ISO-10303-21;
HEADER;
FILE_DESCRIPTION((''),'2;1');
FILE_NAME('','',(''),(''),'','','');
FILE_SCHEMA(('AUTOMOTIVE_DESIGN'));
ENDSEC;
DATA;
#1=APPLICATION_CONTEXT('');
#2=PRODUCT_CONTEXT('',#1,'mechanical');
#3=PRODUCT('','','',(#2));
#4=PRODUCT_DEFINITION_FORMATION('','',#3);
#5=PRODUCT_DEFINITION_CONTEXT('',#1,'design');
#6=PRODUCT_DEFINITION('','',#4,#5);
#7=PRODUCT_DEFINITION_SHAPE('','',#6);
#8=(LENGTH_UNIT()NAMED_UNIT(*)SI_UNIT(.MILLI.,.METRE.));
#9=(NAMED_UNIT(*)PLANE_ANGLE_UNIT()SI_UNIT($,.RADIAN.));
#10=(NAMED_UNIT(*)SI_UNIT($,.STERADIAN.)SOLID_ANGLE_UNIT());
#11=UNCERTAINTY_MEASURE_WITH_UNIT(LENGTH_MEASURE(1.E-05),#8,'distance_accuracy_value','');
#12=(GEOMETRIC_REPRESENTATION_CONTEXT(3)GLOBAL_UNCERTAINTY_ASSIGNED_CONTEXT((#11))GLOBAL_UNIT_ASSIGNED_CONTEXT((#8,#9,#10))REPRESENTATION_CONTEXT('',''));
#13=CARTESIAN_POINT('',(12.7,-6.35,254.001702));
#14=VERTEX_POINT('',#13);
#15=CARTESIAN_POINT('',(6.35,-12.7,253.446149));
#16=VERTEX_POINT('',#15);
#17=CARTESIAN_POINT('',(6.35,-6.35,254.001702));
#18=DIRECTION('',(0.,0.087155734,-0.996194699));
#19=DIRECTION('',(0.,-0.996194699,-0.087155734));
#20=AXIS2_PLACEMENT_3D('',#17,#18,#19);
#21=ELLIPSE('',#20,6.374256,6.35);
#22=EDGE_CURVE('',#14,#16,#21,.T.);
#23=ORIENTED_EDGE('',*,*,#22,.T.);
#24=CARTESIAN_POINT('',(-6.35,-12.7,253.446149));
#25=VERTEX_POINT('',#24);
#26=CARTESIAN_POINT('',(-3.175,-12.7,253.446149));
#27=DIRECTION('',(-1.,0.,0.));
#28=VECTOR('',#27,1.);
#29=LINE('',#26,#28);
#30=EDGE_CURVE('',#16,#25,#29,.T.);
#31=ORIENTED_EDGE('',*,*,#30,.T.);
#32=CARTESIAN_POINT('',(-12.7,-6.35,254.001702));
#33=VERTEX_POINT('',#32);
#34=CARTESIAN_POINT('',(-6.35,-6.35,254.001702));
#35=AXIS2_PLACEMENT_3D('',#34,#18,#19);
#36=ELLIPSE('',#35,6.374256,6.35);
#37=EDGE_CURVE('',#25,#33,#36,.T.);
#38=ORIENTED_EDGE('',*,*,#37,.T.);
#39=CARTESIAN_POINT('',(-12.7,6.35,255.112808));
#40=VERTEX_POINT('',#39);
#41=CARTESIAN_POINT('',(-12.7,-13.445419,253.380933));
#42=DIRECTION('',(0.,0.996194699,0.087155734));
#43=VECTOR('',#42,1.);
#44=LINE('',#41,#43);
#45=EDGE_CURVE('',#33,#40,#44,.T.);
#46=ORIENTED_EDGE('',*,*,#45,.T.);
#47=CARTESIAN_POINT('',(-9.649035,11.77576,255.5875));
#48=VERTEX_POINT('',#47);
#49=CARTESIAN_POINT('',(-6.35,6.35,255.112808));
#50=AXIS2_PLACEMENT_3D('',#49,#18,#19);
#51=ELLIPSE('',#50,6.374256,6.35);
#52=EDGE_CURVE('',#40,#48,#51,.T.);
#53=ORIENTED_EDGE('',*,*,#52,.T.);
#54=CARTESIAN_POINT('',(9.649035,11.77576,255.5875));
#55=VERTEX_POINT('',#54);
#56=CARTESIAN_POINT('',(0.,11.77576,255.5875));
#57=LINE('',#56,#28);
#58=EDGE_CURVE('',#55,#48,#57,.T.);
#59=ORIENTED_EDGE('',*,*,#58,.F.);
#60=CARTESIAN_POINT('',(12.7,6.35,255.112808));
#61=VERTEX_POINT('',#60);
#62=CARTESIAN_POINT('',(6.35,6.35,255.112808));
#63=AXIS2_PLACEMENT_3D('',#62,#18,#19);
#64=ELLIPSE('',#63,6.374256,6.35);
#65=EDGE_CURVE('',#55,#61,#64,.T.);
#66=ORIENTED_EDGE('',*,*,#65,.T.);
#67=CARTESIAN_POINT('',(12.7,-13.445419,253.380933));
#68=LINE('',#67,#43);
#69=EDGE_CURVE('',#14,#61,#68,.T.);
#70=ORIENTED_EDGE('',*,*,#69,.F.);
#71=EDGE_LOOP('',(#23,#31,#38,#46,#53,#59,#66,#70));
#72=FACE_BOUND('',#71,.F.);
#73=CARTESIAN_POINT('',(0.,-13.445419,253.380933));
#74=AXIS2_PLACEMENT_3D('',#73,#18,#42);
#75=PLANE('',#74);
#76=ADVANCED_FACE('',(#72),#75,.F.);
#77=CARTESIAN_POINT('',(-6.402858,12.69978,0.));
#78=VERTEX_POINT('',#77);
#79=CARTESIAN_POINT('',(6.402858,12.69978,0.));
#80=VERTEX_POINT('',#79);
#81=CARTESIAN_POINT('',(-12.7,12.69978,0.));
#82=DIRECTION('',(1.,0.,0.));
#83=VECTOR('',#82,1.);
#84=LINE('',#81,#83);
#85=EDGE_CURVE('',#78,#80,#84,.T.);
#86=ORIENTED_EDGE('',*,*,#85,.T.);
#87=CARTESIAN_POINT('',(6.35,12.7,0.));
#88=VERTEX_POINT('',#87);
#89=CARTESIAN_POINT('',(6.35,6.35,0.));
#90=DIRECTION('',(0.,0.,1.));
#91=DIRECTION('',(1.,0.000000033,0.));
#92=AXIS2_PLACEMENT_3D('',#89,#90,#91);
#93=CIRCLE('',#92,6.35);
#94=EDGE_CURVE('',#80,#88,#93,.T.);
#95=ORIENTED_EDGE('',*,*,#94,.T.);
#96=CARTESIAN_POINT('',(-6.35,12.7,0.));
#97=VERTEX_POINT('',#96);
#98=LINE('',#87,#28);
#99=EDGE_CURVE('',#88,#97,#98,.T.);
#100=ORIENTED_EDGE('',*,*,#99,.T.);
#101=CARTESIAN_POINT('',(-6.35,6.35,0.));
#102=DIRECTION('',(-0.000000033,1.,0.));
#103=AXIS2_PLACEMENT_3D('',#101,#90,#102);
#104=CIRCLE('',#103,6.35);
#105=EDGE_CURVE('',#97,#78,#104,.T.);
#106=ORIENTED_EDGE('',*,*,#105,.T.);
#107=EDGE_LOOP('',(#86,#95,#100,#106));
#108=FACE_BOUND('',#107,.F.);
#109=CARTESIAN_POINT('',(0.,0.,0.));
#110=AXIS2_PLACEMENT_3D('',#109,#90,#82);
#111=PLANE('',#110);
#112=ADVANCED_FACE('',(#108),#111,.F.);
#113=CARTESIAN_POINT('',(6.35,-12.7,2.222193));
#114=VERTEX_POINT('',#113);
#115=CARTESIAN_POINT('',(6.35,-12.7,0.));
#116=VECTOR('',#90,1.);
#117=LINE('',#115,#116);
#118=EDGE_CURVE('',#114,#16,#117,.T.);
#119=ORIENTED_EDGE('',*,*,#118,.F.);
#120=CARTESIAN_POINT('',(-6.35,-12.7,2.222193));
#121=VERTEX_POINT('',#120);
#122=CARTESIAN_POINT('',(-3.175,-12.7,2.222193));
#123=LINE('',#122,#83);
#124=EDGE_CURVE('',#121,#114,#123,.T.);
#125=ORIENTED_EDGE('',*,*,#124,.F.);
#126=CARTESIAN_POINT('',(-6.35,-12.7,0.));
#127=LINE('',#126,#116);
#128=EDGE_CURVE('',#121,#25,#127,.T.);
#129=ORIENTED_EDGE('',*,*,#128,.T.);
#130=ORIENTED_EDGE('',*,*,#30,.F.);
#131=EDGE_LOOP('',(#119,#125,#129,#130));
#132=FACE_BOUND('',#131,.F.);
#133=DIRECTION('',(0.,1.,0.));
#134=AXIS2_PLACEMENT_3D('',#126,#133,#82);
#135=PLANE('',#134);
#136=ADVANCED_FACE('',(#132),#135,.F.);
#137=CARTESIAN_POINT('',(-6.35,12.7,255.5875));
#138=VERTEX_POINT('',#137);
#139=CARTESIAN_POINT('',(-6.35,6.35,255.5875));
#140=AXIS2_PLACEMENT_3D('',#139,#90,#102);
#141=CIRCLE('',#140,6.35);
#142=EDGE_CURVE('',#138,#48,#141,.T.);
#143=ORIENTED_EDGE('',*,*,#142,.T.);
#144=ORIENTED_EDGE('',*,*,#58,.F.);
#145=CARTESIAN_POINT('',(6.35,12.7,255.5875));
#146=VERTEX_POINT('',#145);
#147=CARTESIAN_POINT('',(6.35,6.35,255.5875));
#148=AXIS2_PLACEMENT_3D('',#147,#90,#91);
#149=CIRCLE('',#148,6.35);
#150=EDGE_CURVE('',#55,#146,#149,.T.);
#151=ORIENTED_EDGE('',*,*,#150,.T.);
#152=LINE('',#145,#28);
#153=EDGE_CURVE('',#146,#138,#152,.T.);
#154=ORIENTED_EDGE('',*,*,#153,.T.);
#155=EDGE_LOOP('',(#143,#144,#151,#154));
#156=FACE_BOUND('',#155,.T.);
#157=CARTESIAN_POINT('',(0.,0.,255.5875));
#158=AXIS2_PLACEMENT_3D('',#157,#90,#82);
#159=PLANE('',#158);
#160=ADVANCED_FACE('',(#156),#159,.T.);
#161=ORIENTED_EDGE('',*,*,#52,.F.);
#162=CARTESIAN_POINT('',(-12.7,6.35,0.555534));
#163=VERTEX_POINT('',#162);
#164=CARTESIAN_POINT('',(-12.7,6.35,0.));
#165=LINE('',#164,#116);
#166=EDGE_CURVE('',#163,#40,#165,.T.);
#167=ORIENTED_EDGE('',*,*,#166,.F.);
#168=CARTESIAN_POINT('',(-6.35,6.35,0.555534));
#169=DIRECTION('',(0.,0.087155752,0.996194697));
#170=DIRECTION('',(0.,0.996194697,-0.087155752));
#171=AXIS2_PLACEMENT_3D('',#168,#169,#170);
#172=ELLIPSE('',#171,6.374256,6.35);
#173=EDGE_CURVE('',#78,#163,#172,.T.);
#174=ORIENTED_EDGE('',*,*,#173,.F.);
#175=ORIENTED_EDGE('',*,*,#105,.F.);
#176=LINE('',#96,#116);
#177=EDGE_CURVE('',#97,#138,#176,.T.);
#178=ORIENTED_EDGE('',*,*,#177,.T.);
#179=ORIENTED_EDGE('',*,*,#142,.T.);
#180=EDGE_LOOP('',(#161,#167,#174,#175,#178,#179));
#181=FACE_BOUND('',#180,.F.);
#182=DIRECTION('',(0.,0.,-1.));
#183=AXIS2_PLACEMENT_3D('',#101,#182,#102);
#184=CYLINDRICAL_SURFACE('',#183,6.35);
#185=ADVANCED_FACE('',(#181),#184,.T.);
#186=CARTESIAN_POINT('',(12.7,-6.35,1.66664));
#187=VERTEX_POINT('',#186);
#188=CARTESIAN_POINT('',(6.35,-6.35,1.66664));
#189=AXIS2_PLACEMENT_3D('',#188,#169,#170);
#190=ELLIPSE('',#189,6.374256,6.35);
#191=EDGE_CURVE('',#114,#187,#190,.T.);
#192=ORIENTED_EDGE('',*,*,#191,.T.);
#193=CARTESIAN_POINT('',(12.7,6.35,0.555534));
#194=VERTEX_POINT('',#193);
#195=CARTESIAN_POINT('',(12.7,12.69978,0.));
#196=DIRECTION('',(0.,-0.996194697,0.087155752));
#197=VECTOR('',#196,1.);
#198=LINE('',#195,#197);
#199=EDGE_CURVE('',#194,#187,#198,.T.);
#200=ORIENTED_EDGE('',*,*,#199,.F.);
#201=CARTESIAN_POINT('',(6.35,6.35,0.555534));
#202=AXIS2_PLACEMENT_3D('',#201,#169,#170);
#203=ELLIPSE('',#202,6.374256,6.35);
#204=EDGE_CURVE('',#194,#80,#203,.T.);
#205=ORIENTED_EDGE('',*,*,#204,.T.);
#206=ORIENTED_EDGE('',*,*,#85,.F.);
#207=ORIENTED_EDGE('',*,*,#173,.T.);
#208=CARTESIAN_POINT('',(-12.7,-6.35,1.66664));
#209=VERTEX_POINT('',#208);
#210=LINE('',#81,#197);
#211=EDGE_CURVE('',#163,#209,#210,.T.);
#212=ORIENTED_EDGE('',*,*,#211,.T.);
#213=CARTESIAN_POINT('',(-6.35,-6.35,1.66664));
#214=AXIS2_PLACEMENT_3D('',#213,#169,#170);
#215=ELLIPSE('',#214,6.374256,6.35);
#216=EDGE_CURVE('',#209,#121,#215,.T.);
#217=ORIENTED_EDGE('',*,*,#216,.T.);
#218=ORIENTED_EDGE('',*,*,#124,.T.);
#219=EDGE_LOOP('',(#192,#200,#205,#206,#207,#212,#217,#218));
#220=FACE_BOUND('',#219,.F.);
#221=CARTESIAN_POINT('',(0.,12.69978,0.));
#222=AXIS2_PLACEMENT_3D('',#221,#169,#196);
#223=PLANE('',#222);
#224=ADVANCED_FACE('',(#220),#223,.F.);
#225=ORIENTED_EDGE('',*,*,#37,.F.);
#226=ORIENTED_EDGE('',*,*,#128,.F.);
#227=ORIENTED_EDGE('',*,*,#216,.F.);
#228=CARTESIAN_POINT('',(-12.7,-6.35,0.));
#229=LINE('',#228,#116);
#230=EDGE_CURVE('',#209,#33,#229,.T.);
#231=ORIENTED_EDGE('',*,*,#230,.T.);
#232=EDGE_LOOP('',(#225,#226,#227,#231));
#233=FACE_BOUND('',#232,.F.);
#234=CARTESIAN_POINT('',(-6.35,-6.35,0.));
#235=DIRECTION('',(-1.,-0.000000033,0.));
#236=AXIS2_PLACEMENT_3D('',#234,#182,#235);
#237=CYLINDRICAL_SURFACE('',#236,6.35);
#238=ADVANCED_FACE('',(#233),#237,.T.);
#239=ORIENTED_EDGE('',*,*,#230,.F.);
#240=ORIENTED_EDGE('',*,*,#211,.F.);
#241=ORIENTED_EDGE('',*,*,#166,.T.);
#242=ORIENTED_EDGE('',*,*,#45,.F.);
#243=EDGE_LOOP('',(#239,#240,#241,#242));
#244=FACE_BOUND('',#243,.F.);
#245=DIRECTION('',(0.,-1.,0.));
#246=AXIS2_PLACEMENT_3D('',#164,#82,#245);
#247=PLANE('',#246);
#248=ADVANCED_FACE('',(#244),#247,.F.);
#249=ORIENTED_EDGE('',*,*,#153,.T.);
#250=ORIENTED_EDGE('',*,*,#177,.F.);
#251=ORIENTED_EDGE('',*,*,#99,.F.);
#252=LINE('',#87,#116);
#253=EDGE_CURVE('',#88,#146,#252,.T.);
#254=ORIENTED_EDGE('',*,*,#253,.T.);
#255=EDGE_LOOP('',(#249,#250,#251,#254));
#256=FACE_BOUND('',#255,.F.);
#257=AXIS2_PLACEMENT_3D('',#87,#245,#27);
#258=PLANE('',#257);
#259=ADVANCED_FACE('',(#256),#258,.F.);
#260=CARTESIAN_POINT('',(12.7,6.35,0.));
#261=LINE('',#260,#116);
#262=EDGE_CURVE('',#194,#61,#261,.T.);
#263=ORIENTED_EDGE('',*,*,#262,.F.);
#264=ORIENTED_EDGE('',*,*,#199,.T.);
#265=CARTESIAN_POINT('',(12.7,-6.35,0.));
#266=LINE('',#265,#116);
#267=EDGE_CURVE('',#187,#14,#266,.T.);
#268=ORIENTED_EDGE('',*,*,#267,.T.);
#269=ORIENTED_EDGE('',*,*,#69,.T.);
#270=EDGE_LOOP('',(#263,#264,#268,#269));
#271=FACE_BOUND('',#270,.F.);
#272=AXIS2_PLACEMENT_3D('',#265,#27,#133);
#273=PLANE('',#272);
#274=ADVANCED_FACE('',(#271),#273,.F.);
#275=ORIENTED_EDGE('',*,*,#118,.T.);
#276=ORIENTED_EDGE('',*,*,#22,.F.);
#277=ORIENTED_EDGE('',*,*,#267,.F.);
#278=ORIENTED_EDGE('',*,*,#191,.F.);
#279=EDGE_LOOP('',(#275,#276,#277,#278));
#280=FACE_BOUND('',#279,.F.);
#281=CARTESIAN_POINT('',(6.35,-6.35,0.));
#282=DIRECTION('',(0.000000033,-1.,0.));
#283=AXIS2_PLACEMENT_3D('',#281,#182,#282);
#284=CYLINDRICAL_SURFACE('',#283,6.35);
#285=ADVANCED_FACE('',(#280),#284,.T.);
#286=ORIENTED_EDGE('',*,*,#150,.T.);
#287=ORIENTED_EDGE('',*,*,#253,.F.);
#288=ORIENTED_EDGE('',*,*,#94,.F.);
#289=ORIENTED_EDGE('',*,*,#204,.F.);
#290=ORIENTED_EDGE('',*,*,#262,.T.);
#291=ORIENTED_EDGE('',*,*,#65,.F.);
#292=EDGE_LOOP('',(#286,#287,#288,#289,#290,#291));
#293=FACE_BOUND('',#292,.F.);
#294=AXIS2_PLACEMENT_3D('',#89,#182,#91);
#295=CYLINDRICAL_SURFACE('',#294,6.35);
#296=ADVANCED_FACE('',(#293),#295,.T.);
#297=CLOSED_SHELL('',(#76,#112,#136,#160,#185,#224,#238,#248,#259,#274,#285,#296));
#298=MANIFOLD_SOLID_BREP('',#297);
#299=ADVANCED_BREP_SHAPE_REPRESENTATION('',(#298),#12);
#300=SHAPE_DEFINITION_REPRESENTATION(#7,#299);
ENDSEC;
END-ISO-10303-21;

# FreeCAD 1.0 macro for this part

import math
import FreeCAD as App
import Part
import Sketcher
Q = App.Units.Quantity


def add_polygon(sketch, points):
    """Adds a closed chain of lines whose ends are joined by coincident constraints."""
    first, n = sketch.GeometryCount, len(points)
    for a, b in zip(points, points[1:] + points[:1]):
        sketch.addGeometry(Part.LineSegment(App.Vector(*a, 0), App.Vector(*b, 0)), False)
    for i in range(n):
        sketch.addConstraint(Sketcher.Constraint("Coincident", first + i, 2, first + (i + 1) % n, 1))

doc = App.newDocument("Part")
body = doc.addObject("PartDesign::Body", "Body")

sketch1 = body.newObject("Sketcher::SketchObject", "Sketch")
sketch1.AttachmentSupport = (doc.getObject("XY_Plane"), [""])
sketch1.MapMode = "FlatFace"
sketch1.addGeometry([
    Part.ArcOfCircle(Part.Circle(App.Vector(6, 6, 0), App.Vector(0, 0, 1), 6), math.radians(0), math.radians(90)),
    Part.LineSegment(App.Vector(6, 13, 0), App.Vector(-6, 13, 0)),
    Part.ArcOfCircle(Part.Circle(App.Vector(-6, 6, 0), App.Vector(0, 0, 1), 6), math.radians(90), math.radians(180)),
    Part.LineSegment(App.Vector(-13, 6, 0), App.Vector(-13, -6, 0)),
    Part.ArcOfCircle(Part.Circle(App.Vector(-6, -6, 0), App.Vector(0, 0, 1), 6), math.radians(-180), math.radians(-90)),
    Part.LineSegment(App.Vector(-6, -13, 0), App.Vector(6, -13, 0)),
    Part.ArcOfCircle(Part.Circle(App.Vector(6, -6, 0), App.Vector(0, 0, 1), 6), math.radians(-90), math.radians(0)),
    Part.LineSegment(App.Vector(13, -6, 0), App.Vector(13, 6, 0)),
], False)
sketch1.addConstraint([
    Sketcher.Constraint("Tangent", 0, 2, 1, 1),
    Sketcher.Constraint("Tangent", 1, 2, 2, 1),
    Sketcher.Constraint("Tangent", 2, 2, 3, 1),
    Sketcher.Constraint("Tangent", 3, 2, 4, 1),
    Sketcher.Constraint("Tangent", 4, 2, 5, 1),
    Sketcher.Constraint("Tangent", 5, 2, 6, 1),
    Sketcher.Constraint("Tangent", 6, 2, 7, 1),
    Sketcher.Constraint("Tangent", 7, 2, 0, 1),
    Sketcher.Constraint("Horizontal", 1),
    Sketcher.Constraint("Vertical", 3),
    Sketcher.Constraint("Horizontal", 5),
    Sketcher.Constraint("Vertical", 7),
    Sketcher.Constraint("Equal", 0, 2),
    Sketcher.Constraint("Equal", 2, 4),
    Sketcher.Constraint("Equal", 4, 6),
    Sketcher.Constraint("Symmetric", 0, 3, 4, 3, -1, 1),
    Sketcher.Constraint("Equal", 5, 3),
    Sketcher.Constraint("Radius", 0, Q("0.25 in")),
    Sketcher.Constraint("DistanceX", 1, 2, 1, 1, Q("0.5 in")),
])
pad1 = body.newObject("PartDesign::Pad", "Pad")
pad1.Profile = sketch1
pad1.Length = Q("10.0625 in")

sketch2 = body.newObject("Sketcher::SketchObject", "Sketch001")
sketch2.AttachmentSupport = (doc.getObject("YZ_Plane"), [""])
sketch2.MapMode = "FlatFace"
add_polygon(sketch2, [(-17.7, 0), (12.7, 0), (-17.7, 2.7)])
sketch2.addConstraint([
    Sketcher.Constraint("Horizontal", 0),
    Sketcher.Constraint("Vertical", 2),
    Sketcher.Constraint("PointOnObject", 0, 2, -1),
    Sketcher.Constraint("Angle", 1, Q("174.999999 deg")),
    Sketcher.Constraint("DistanceX", 0, 1, 0, 2, 30.41244),
    Sketcher.Constraint("DistanceX", -1, 1, 0, 2, 12.69978),
])
pocket1 = body.newObject("PartDesign::Pocket", "Pocket")
pocket1.Profile = sketch2
pocket1.Length = Q("1 in")
pocket1.Midplane = True

sketch3 = body.newObject("Sketcher::SketchObject", "Sketch002")
sketch3.AttachmentSupport = (doc.getObject("YZ_Plane"), [""])
sketch3.MapMode = "FlatFace"
add_polygon(sketch3, [(-13.4, 253.4), (13.2, 255.7), (-13.4, 255.7)])
sketch3.addConstraint([
    Sketcher.Constraint("Horizontal", 1),
    Sketcher.Constraint("Vertical", 2),
    Sketcher.Constraint("Angle", 0, Q("4.999999 deg")),
    Sketcher.Constraint("DistanceX", 1, 2, 1, 1, 26.626481),
    Sketcher.Constraint("DistanceY", -1, 1, 0, 2, 255.710448),
    Sketcher.Constraint("DistanceX", 1, 2, -1, 1, 13.445419),
])
pocket2 = body.newObject("PartDesign::Pocket", "Pocket001")
pocket2.Profile = sketch3
pocket2.Length = Q("1 in")
pocket2.Midplane = True

doc.recompute()
